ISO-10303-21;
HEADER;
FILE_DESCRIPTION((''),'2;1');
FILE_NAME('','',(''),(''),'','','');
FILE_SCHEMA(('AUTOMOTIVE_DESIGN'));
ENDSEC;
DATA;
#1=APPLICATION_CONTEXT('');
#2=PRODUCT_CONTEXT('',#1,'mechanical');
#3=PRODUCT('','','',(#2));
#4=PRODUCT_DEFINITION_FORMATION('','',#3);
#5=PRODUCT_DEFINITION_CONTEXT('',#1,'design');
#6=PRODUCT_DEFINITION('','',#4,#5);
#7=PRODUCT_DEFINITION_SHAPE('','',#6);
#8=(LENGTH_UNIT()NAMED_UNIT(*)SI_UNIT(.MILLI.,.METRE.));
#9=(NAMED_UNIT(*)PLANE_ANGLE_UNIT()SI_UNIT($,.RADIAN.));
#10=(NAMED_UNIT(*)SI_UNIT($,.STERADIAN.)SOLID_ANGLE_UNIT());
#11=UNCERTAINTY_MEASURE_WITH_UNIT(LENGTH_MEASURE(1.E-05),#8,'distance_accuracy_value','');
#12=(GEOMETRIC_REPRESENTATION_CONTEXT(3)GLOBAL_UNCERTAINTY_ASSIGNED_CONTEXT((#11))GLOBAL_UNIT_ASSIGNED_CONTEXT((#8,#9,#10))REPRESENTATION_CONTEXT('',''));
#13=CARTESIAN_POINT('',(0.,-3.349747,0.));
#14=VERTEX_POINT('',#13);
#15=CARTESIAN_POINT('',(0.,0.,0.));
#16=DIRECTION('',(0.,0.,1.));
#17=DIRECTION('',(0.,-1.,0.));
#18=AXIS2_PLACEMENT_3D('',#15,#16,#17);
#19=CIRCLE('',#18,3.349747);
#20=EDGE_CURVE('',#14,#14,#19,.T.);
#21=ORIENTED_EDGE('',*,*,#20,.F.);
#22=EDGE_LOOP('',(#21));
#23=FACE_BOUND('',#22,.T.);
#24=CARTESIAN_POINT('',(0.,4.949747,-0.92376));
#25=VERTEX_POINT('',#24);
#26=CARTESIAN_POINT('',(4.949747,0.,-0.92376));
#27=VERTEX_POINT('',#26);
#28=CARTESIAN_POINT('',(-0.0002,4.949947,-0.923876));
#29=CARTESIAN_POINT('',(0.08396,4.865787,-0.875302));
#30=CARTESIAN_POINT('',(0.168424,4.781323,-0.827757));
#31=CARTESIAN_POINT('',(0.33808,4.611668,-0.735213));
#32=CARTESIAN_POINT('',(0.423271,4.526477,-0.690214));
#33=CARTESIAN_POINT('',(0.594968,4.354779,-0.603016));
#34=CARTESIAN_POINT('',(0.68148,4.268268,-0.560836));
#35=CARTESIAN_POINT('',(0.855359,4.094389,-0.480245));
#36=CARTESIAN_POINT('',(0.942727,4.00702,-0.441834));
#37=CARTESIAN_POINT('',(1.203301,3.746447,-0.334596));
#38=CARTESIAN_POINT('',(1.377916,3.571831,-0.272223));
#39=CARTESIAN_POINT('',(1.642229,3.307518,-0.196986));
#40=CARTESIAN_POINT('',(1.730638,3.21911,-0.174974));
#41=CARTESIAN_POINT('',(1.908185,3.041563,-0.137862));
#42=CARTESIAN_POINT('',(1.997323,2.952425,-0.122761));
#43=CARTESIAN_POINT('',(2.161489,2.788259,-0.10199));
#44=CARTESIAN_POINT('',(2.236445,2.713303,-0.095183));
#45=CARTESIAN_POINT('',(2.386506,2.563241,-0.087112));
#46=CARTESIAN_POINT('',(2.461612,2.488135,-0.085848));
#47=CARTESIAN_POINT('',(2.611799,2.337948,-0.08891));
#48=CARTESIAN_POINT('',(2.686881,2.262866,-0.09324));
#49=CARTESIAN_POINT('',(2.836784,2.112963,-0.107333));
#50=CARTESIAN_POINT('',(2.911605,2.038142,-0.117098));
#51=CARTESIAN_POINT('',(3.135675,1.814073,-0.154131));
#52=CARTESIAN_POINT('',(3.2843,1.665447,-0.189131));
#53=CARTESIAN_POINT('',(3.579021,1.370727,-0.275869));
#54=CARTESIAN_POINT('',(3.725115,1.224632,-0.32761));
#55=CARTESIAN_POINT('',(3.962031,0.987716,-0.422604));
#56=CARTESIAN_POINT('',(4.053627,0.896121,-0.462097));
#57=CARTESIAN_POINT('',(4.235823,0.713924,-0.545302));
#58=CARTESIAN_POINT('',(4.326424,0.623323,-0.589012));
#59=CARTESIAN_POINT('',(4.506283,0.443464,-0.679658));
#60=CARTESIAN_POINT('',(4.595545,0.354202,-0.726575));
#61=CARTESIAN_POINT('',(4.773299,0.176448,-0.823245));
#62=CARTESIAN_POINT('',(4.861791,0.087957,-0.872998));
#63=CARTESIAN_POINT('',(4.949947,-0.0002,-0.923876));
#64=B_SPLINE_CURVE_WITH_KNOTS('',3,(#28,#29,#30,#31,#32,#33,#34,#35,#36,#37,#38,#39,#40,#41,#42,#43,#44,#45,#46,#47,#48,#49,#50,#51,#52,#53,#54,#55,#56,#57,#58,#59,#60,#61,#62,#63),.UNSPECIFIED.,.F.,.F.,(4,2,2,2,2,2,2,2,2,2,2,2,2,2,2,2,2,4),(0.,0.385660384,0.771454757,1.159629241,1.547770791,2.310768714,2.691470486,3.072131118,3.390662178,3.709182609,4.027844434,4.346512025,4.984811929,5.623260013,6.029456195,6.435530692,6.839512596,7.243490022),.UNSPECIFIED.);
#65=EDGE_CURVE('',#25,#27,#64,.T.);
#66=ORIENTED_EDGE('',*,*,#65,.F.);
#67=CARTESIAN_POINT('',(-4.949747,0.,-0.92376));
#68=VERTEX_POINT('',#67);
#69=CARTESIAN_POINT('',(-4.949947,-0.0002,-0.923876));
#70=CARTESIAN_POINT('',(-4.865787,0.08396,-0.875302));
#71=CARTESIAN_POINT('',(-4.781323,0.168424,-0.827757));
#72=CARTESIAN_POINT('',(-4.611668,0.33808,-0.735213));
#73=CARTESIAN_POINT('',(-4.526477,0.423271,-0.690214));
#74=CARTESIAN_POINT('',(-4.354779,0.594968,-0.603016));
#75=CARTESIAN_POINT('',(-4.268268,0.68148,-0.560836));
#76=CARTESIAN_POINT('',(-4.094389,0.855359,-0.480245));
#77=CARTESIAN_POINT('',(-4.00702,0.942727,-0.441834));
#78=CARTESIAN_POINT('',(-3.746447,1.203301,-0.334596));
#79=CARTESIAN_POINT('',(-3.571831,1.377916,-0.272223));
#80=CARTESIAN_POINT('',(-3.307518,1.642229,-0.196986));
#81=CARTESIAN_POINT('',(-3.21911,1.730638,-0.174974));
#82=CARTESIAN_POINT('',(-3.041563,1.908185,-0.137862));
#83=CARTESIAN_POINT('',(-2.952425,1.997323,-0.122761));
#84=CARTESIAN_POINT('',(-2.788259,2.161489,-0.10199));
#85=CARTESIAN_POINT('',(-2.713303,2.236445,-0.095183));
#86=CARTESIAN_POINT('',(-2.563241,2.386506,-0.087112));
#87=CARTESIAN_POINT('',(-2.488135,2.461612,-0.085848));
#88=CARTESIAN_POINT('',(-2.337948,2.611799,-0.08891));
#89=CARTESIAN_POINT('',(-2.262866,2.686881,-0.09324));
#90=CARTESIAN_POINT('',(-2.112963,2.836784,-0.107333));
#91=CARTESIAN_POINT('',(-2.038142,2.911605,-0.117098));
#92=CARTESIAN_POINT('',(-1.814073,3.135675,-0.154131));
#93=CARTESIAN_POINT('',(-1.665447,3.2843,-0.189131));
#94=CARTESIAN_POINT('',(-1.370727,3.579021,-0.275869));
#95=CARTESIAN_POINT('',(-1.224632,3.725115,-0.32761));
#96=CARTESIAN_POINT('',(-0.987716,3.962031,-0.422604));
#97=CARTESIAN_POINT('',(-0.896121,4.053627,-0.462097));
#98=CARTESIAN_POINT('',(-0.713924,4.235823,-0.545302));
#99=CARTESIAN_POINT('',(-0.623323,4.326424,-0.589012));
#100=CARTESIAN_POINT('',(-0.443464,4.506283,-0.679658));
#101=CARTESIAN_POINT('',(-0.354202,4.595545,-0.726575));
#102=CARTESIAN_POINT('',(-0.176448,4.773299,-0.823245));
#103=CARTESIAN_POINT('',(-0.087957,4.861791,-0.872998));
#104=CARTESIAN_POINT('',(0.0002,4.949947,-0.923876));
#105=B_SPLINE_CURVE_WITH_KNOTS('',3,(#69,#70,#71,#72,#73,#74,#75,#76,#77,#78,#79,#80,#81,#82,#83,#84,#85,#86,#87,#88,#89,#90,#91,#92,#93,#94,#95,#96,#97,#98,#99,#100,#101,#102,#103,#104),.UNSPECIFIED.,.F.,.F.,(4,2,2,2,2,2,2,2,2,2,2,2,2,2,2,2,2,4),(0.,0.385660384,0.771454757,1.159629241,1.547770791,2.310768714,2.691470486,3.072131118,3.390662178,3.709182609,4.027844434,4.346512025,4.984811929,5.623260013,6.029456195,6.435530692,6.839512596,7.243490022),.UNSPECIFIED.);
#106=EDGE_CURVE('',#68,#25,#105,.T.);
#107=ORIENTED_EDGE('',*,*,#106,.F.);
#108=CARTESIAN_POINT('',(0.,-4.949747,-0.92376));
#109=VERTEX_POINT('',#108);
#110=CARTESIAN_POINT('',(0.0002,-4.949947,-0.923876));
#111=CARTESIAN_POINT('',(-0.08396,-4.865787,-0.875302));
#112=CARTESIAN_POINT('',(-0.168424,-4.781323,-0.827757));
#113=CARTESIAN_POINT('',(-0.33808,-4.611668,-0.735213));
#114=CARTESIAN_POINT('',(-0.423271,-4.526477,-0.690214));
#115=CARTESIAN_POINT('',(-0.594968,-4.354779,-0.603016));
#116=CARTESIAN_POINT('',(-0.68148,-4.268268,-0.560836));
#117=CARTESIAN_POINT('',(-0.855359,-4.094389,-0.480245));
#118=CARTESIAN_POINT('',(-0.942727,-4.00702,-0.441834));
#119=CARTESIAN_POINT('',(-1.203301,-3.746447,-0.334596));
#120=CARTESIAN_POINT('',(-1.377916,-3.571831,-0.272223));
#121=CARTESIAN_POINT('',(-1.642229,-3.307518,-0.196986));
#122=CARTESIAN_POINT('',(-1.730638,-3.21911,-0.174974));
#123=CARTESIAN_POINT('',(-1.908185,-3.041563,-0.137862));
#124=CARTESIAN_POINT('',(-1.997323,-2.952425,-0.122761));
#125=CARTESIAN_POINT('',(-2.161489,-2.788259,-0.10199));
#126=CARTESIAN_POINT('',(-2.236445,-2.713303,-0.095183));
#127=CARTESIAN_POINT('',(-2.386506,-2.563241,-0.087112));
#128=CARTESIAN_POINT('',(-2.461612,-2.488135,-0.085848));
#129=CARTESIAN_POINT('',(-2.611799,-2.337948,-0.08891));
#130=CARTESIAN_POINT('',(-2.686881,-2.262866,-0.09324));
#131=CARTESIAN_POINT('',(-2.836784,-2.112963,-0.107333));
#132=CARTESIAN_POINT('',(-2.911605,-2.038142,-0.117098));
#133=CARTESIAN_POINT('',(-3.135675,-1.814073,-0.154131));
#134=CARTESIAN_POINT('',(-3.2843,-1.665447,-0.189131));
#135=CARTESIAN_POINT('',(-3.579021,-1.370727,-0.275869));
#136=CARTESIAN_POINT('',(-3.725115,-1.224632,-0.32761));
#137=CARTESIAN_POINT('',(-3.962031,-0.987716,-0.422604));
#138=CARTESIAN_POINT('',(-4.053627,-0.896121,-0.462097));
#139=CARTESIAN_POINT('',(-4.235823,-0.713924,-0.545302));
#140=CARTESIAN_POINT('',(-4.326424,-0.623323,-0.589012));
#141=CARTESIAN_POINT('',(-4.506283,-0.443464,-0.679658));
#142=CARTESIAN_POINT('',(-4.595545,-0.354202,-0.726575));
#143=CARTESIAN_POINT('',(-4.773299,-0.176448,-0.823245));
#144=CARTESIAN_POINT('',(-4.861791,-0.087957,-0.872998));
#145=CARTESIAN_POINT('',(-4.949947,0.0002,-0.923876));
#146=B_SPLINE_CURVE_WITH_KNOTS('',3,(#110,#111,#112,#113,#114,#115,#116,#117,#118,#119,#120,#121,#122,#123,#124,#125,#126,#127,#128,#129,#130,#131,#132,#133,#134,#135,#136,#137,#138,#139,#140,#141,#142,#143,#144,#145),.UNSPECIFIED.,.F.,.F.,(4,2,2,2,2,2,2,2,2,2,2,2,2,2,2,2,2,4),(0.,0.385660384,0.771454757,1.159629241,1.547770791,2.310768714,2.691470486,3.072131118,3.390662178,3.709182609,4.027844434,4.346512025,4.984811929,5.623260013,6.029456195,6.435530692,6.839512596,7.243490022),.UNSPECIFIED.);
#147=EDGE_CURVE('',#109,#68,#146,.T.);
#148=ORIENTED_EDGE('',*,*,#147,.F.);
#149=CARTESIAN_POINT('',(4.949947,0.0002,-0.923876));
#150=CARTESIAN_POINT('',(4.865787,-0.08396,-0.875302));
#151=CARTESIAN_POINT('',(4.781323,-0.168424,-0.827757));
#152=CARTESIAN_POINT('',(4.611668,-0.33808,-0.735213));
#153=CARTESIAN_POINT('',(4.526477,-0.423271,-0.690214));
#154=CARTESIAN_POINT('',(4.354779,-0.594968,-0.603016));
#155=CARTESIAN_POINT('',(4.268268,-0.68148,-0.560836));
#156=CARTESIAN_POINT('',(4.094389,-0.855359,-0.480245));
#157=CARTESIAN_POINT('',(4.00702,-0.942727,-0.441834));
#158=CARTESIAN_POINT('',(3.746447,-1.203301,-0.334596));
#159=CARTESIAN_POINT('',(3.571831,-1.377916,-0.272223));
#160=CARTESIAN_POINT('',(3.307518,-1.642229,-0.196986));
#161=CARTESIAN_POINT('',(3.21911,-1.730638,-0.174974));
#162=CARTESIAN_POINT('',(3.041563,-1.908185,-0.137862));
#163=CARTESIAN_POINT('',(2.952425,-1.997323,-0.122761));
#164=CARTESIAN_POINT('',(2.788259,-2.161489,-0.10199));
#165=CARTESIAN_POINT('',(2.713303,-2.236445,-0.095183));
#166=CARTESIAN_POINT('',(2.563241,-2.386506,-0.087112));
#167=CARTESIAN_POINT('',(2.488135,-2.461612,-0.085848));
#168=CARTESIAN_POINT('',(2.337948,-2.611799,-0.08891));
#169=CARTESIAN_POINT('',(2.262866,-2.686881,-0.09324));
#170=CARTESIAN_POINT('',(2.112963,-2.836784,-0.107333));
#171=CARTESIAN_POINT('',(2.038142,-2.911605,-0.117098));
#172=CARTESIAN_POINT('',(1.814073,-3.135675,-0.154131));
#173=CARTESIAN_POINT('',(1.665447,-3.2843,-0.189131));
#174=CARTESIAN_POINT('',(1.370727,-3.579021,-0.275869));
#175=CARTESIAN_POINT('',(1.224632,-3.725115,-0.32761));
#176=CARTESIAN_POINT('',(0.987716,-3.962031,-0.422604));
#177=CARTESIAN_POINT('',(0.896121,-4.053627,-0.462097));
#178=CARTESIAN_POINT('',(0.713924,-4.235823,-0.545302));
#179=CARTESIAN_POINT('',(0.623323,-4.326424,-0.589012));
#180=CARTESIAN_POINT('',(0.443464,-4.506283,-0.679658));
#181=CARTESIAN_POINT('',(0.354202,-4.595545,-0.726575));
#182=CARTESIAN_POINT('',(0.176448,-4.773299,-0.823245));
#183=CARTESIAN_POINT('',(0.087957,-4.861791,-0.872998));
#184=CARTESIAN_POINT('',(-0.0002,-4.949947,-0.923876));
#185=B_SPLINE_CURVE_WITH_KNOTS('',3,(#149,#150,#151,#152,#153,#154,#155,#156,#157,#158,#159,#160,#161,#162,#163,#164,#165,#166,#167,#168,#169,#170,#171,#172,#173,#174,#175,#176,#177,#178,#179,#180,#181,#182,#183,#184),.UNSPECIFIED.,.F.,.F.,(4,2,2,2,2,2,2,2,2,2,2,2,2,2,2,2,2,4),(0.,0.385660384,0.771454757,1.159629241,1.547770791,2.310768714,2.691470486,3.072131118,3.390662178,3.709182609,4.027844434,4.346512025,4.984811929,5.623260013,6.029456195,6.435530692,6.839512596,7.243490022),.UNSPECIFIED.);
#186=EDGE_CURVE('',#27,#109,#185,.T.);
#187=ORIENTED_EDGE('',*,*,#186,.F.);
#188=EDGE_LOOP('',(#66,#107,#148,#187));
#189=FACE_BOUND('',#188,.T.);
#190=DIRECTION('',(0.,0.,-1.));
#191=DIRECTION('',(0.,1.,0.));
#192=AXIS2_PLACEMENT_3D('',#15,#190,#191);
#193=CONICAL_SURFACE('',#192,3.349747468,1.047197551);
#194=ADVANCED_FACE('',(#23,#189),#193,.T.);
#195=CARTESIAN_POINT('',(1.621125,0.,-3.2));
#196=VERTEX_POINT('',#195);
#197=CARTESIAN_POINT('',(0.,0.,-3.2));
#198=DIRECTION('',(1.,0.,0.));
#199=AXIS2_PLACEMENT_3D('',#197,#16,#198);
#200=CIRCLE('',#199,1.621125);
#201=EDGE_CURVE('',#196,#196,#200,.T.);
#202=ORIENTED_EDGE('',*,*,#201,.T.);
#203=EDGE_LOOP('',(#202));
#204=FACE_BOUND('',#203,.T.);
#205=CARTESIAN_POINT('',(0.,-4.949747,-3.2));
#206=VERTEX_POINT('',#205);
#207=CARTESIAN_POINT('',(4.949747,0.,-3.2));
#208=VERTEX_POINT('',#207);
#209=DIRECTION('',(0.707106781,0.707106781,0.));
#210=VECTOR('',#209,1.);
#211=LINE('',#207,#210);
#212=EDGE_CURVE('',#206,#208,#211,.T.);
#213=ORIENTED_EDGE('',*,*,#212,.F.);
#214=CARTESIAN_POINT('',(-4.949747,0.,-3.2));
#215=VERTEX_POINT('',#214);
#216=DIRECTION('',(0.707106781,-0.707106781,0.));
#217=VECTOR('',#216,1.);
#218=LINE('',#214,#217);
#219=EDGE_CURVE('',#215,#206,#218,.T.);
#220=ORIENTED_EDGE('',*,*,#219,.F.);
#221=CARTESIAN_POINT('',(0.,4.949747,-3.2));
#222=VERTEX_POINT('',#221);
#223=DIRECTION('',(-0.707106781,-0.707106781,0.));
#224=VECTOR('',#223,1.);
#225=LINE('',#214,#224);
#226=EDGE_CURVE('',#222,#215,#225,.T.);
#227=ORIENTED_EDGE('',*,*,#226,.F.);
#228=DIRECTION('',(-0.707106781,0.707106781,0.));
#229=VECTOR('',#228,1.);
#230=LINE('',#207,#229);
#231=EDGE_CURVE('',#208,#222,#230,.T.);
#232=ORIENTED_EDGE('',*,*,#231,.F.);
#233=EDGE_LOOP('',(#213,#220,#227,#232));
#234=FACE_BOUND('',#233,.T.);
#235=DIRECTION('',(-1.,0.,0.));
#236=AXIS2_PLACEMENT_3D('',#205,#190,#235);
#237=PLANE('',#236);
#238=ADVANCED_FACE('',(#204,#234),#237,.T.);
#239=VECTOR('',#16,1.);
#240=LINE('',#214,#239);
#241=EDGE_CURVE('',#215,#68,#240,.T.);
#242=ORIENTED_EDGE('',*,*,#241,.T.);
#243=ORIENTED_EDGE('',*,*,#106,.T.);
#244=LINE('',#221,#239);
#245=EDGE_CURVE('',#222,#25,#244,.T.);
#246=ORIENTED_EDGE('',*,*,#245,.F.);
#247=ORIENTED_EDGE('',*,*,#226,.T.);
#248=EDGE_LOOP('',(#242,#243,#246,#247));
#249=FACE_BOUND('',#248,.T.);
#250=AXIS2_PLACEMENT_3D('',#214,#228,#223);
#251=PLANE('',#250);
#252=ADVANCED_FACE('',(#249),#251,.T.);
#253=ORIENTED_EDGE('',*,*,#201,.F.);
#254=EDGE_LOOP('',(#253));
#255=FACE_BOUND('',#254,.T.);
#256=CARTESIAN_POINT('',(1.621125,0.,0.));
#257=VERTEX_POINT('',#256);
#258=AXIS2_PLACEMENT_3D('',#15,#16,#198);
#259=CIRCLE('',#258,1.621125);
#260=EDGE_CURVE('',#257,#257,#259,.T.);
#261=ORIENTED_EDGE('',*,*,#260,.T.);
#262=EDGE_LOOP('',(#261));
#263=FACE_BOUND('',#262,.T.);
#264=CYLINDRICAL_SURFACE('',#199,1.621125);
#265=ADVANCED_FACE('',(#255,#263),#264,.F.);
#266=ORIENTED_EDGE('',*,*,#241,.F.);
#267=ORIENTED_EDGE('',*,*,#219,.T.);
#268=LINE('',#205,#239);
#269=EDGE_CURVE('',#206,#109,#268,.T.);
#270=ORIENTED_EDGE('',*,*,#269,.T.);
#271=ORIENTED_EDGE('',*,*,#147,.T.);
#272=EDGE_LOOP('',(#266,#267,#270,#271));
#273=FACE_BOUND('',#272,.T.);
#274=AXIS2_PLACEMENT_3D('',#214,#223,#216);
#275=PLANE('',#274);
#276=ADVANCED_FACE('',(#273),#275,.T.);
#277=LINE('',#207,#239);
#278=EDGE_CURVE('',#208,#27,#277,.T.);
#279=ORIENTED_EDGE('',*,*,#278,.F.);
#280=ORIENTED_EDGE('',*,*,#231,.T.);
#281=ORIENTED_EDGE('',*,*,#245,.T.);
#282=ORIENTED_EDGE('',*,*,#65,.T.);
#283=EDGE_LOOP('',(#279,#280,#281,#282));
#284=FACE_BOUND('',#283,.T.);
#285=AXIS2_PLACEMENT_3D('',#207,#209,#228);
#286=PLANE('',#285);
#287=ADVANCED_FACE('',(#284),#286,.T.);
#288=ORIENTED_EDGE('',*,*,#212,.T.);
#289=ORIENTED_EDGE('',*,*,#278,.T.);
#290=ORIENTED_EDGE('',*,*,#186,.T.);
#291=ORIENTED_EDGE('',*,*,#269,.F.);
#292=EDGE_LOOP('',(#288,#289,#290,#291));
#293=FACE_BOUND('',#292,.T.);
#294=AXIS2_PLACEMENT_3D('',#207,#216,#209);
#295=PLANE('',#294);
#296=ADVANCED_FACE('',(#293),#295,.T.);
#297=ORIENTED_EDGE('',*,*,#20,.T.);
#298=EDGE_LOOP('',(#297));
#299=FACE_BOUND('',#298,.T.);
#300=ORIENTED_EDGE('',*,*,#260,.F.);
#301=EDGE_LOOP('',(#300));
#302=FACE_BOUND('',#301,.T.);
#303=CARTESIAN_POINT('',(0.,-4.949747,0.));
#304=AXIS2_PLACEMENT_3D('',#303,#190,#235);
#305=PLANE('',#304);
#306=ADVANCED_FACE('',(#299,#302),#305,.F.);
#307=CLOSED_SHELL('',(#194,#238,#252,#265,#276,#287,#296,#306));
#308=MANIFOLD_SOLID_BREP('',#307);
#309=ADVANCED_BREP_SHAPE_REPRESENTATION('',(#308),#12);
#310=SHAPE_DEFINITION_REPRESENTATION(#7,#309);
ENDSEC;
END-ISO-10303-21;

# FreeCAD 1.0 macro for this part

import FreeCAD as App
import Part
import Sketcher
Q = App.Units.Quantity

doc = App.newDocument("Part")
body = doc.addObject("PartDesign::Body", "Body")

sketch1 = body.newObject("Sketcher::SketchObject", "Sketch")
sketch1.AttachmentSupport = (doc.getObject("XY_Plane"), [""])
sketch1.MapMode = "FlatFace"
sketch1.addGeometry([
    Part.LineSegment(App.Vector(0, 4.9, 0), App.Vector(-4.9, 0, 0)),
    Part.LineSegment(App.Vector(-4.9, 0, 0), App.Vector(0, -4.9, 0)),
    Part.LineSegment(App.Vector(0, -4.9, 0), App.Vector(4.9, 0, 0)),
    Part.LineSegment(App.Vector(4.9, 0, 0), App.Vector(0, 4.9, 0)),
    Part.Circle(App.Vector(0, 0, 0), App.Vector(0, 0, 1), 1.6),
], False)
sketch1.addConstraint([
    Sketcher.Constraint("Coincident", 0, 2, 1, 1),
    Sketcher.Constraint("Coincident", 1, 2, 2, 1),
    Sketcher.Constraint("Coincident", 2, 2, 3, 1),
    Sketcher.Constraint("Coincident", 3, 2, 0, 1),
    Sketcher.Constraint("Coincident", 4, 3, -1, 1),
    Sketcher.Constraint("Symmetric", 0, 2, 2, 2, -1, 1),
    Sketcher.Constraint("Symmetric", 1, 2, 3, 2, -1, 1),
    Sketcher.Constraint("PointOnObject", 0, 2, -1),
    Sketcher.Constraint("PointOnObject", 1, 2, -2),
    Sketcher.Constraint("Perpendicular", 0, 1),
    Sketcher.Constraint("Distance", 0, 7.0),
    Sketcher.Constraint("Diameter", 4, 3.24225),
])
pad1 = body.newObject("PartDesign::Pad", "Pad")
pad1.Profile = sketch1
pad1.Length = 3.2
pad1.Reversed = True

sketch2 = body.newObject("Sketcher::SketchObject", "Sketch001")
sketch2.AttachmentSupport = (doc.getObject("YZ_Plane"), [""])
sketch2.MapMode = "FlatFace"
sketch2.addGeometry([
    Part.LineSegment(App.Vector(3.3, 0, 0), App.Vector(4.9, -0.9, 0)),
    Part.LineSegment(App.Vector(4.9, -0.9, 0), App.Vector(4.9, 0, 0)),
    Part.LineSegment(App.Vector(4.9, 0, 0), App.Vector(3.3, 0, 0)),
], False)
sketch2.addConstraint([
    Sketcher.Constraint("Coincident", 0, 2, 1, 1),
    Sketcher.Constraint("Coincident", 1, 2, 2, 1),
    Sketcher.Constraint("Coincident", 2, 2, 0, 1),
    Sketcher.Constraint("Vertical", 1),
    Sketcher.Constraint("Horizontal", 2),
    Sketcher.Constraint("PointOnObject", 1, 2, -1),
    Sketcher.Constraint("Angle", 0, Q("-30 deg")),
    Sketcher.Constraint("DistanceX", 2, 2, 2, 1, 1.6),
    Sketcher.Constraint("DistanceX", -1, 1, 0, 2, 4.949747),
])
groove = body.newObject("PartDesign::Groove", "Groove")
groove.Profile = sketch2
groove.ReferenceAxis = (sketch2, ["V_Axis"])
groove.Angle = 360

doc.recompute()
